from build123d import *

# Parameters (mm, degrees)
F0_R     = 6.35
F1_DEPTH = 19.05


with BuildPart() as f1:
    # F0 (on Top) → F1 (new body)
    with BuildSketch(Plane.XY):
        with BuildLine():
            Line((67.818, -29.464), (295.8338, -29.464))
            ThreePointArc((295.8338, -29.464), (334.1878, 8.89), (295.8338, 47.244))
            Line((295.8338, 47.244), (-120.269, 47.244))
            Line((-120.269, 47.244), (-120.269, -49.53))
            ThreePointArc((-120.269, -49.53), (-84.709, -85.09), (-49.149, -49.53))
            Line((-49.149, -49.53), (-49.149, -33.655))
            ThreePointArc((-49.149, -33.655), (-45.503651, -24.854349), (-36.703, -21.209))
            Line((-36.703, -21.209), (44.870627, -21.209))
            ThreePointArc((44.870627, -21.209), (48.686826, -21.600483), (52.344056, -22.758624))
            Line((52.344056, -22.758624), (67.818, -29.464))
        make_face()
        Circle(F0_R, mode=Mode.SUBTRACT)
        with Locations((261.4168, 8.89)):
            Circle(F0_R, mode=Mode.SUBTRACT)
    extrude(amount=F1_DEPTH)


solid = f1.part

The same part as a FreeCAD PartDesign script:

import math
import FreeCAD as App
import Part
import Sketcher
from FreeCAD import Vector
Q = App.Units.Quantity

doc = App.newDocument("Part")
params = doc.addObject("Spreadsheet::Sheet", "Params")
for row, (alias, value) in enumerate([
    ("sketch1_diameter", "0.5 in"),
    ("sketch1_radius", "1.4 in"),
    ("sketch1_radius2", "1.51 in"),
    ("sketch1_radius3", "0.49 in"),
    ("sketch1_radius4", "0.74 in"),
    ("pad1_length", "0.75 in"),
], start=1):
    params.set(f"A{row}", alias)
    params.set(f"B{row}", "=" + value)
    params.setAlias(f"B{row}", alias)

body = doc.addObject("PartDesign::Body", "Body")

# Sketch on XY plane
sketch1 = body.newObject("Sketcher::SketchObject", "Sketch")
sketch1.AttachmentSupport = (doc.getObject("XY_Plane"), [""])
sketch1.MapMode = "FlatFace"
sketch1.addGeometry([
    Part.LineSegment(Vector(68, -29, 0), Vector(296, -29, 0)),  # 0
    Part.ArcOfCircle(Part.Circle(Vector(296, 9, 0), Vector(0, 0, 1), 38), math.radians(-90), math.radians(90)),  # 1
    Part.LineSegment(Vector(296, 47, 0), Vector(-120, 47, 0)),  # 2
    Part.LineSegment(Vector(-120, 47, 0), Vector(-120, -50, 0)),  # 3
    Part.ArcOfCircle(Part.Circle(Vector(-85, -50, 0), Vector(0, 0, 1), 36), math.radians(180), math.radians(360)),  # 4
    Part.LineSegment(Vector(-49, -50, 0), Vector(-49, -34, 0)),  # 5
    Part.ArcOfCircle(Part.Circle(Vector(-37, -34, 0), Vector(0, 0, 1), 12), math.radians(90), math.radians(180)),  # 6
    Part.LineSegment(Vector(-37, -21, 0), Vector(45, -21, 0)),  # 7
    Part.ArcOfCircle(Part.Circle(Vector(45, -40, 0), Vector(0, 0, 1), 19), math.radians(67), math.radians(90)),  # 8
    Part.LineSegment(Vector(52, -23, 0), Vector(68, -29, 0)),  # 9
    Part.Circle(Vector(0, 0, 0), Vector(0, 0, 1), 6),  # 10
    Part.Circle(Vector(261, 9, 0), Vector(0, 0, 1), 6),  # 11
], False)
sketch1.addConstraint([
    Sketcher.Constraint("Tangent", 0, 2, 1, 1),
    Sketcher.Constraint("Tangent", 1, 2, 2, 1),
    Sketcher.Constraint("Coincident", 2, 2, 3, 1),
    Sketcher.Constraint("Tangent", 3, 2, 4, 1),
    Sketcher.Constraint("Tangent", 4, 2, 5, 1),
    Sketcher.Constraint("Tangent", 5, 2, 6, 2),
    Sketcher.Constraint("Tangent", 6, 1, 7, 1),
    Sketcher.Constraint("Tangent", 7, 2, 8, 2),
    Sketcher.Constraint("Tangent", 8, 1, 9, 1),
    Sketcher.Constraint("Coincident", 9, 2, 0, 1),
    Sketcher.Constraint("Horizontal", 0),
    Sketcher.Constraint("Horizontal", 2),
    Sketcher.Constraint("Vertical", 3),
    Sketcher.Constraint("Vertical", 5),
    Sketcher.Constraint("Horizontal", 7),
    Sketcher.Constraint("Coincident", 10, 3, -1, 1),
    Sketcher.Constraint("Equal", 10, 11),
    Sketcher.Constraint("Horizontal", 1, 3, 11, 3),
    Sketcher.Constraint("Diameter", 10, Q("0.5 in")),
    Sketcher.Constraint("Radius", 4, Q("1.4 in")),
    Sketcher.Constraint("Radius", 1, Q("1.51 in")),
    Sketcher.Constraint("Radius", 6, Q("0.49 in")),
    Sketcher.Constraint("Radius", 8, Q("0.74 in")),
    Sketcher.Constraint("DistanceY", 3, 2, 3, 1, Q("3.81 in")),
    Sketcher.Constraint("DistanceX", 0, 1, 0, 2, Q("8.977 in")),
    Sketcher.Constraint("DistanceX", 2, 2, 2, 1, Q("16.382 in")),
    Sketcher.Constraint("DistanceY", 5, 1, 5, 2, Q("0.625 in")),
    Sketcher.Constraint("DistanceY", -1, 1, 1, 3, Q("0.35 in")),
    Sketcher.Constraint("DistanceX", -1, 1, 9, 2, Q("2.67 in")),
    Sketcher.Constraint("DistanceX", -1, 1, 11, 3, Q("10.292 in")),
    Sketcher.Constraint("Distance", 9, 16.864312),
])
sketch1.setExpression("Constraints[18]", "Params.sketch1_diameter")
sketch1.setExpression("Constraints[19]", "Params.sketch1_radius")
sketch1.setExpression("Constraints[20]", "Params.sketch1_radius2")
sketch1.setExpression("Constraints[21]", "Params.sketch1_radius3")
sketch1.setExpression("Constraints[22]", "Params.sketch1_radius4")
pad1 = body.newObject("PartDesign::Pad", "Pad")
pad1.Profile = sketch1
pad1.setExpression("Length", "Params.pad1_length")

doc.recompute()
